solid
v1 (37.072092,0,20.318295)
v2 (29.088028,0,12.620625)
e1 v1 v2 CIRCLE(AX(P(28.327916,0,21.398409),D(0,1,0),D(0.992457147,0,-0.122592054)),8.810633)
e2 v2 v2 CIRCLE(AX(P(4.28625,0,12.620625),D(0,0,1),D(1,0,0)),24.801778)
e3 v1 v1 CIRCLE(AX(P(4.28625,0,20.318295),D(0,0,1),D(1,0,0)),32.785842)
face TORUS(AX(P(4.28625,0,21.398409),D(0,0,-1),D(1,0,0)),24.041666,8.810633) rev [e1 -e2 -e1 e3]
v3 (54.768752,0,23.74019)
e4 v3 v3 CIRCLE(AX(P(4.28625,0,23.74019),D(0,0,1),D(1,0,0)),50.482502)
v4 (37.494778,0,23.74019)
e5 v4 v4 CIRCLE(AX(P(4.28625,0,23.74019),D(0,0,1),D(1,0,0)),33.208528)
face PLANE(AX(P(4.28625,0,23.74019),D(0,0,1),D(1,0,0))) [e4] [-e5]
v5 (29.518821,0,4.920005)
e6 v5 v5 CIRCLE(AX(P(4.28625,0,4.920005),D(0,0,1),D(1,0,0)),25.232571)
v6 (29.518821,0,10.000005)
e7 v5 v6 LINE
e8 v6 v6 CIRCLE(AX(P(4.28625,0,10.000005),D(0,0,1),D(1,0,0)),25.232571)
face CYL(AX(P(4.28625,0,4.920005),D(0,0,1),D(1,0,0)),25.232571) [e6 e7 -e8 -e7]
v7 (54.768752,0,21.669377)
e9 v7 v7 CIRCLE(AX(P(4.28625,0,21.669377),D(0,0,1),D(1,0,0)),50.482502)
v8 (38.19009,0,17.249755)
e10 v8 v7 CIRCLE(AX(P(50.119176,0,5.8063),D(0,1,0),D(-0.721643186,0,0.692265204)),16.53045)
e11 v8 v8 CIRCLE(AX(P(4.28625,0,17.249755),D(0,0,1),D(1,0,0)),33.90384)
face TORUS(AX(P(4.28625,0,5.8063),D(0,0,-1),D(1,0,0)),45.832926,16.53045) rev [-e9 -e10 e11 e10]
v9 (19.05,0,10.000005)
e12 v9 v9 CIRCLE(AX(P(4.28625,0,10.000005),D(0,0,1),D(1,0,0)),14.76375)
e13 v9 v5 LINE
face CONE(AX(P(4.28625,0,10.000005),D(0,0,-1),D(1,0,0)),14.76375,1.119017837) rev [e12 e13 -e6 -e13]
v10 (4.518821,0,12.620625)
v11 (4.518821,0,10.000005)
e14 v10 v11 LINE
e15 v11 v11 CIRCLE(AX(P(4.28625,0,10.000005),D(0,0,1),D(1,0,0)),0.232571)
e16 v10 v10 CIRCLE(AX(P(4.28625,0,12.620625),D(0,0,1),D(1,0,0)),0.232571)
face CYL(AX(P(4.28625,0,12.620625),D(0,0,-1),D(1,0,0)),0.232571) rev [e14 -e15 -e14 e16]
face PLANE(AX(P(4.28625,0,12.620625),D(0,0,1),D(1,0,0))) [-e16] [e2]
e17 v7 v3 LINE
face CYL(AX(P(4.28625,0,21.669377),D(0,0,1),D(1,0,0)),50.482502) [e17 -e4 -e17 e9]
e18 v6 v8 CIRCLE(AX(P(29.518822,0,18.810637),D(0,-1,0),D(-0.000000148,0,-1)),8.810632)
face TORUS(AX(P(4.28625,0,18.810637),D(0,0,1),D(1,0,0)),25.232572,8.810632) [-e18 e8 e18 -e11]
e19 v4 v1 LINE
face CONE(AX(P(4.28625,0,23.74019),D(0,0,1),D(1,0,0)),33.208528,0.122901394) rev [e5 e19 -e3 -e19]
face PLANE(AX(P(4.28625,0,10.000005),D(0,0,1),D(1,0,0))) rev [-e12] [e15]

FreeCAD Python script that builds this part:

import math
import FreeCAD as App
import Part
import Sketcher
Q = App.Units.Quantity

doc = App.newDocument("Part")
body = doc.addObject("PartDesign::Body", "Body")

# Sketch on XZ plane
sketch1 = body.newObject("Sketcher::SketchObject", "Sketch")
sketch1.AttachmentSupport = (doc.getObject("XZ_Plane"), [""])
sketch1.MapMode = "FlatFace"
sketch1.addGeometry([
    Part.LineSegment(App.Vector(4.5, 12.6, 0), App.Vector(4.5, 10, 0)),  # 0
    Part.LineSegment(App.Vector(4.5, 10, 0), App.Vector(19.1, 10, 0)),  # 1
    Part.LineSegment(App.Vector(19.1, 10, 0), App.Vector(29.5, 4.9, 0)),  # 2
    Part.LineSegment(App.Vector(29.5, 4.9, 0), App.Vector(29.5, 10, 0)),  # 3
    Part.ArcOfCircle(Part.Circle(App.Vector(29.5, 18.8, 0), App.Vector(0, 0, 1), 8.8), math.radians(-90), math.radians(-10)),  # 4
    Part.ArcOfCircle(Part.Circle(App.Vector(50.1, 5.8, 0), App.Vector(0, 0, 1), 16.5), math.radians(74), math.radians(136)),  # 5
    Part.LineSegment(App.Vector(54.8, 21.7, 0), App.Vector(54.8, 23.7, 0)),  # 6
    Part.LineSegment(App.Vector(54.8, 23.7, 0), App.Vector(37.5, 23.7, 0)),  # 7
    Part.LineSegment(App.Vector(37.5, 23.7, 0), App.Vector(37.1, 20.3, 0)),  # 8
    Part.ArcOfCircle(Part.Circle(App.Vector(28.3, 21.4, 0), App.Vector(0, 0, 1), 8.8), math.radians(-85), math.radians(-7)),  # 9
    Part.LineSegment(App.Vector(29.1, 12.6, 0), App.Vector(4.5, 12.6, 0)),  # 10
], False)
sketch1.addGeometry(Part.LineSegment(App.Vector(4.3, 4.9, 0), App.Vector(4.3, 23.7, 0)), True)  # axis
sketch1.addConstraint([
    Sketcher.Constraint("Coincident", 0, 2, 1, 1),
    Sketcher.Constraint("Coincident", 1, 2, 2, 1),
    Sketcher.Constraint("Coincident", 2, 2, 3, 1),
    Sketcher.Constraint("Coincident", 3, 2, 4, 1),
    Sketcher.Constraint("Coincident", 4, 2, 5, 2),
    Sketcher.Constraint("Coincident", 5, 1, 6, 1),
    Sketcher.Constraint("Coincident", 6, 2, 7, 1),
    Sketcher.Constraint("Coincident", 7, 2, 8, 1),
    Sketcher.Constraint("Tangent", 8, 2, 9, 2),
    Sketcher.Constraint("Coincident", 9, 1, 10, 1),
    Sketcher.Constraint("Coincident", 10, 2, 0, 1),
    Sketcher.Constraint("Vertical", 0),
    Sketcher.Constraint("Horizontal", 1),
    Sketcher.Constraint("Vertical", 3),
    Sketcher.Constraint("Vertical", 6),
    Sketcher.Constraint("Horizontal", 7),
    Sketcher.Constraint("Horizontal", 10),
    Sketcher.Constraint("Vertical", 11),
    Sketcher.Constraint("Equal", 4, 9),
    Sketcher.Constraint("Horizontal", 1, 2, 3, 2),
    Sketcher.Constraint("Horizontal", 2, 2, 11, 1),
    Sketcher.Constraint("Horizontal", 7, 2, 11, 2),
    Sketcher.Constraint("Vertical", 4, 3, 2, 2),
    Sketcher.Constraint("DistanceY", 3, 1, 3, 2, Q("0.2 in")),
    Sketcher.Constraint("DistanceX", -1, 1, 1, 2, Q("0.75 in")),
    Sketcher.Constraint("DistanceX", -1, 1, 5, 1, Q("2.1562501 in")),
    Sketcher.Constraint("Radius", 4, 8.810632),
    Sketcher.Constraint("Radius", 5, 16.53045),
    Sketcher.Constraint("DistanceX", 9, 3, 7, 2, Q("0.3609001 in")),
    Sketcher.Constraint("DistanceX", 1, 1, 1, 2, 14.531179),
    Sketcher.Constraint("DistanceY", 0, 2, 0, 1, 2.62062),
    Sketcher.Constraint("DistanceY", -1, 1, 5, 3, 5.8063),
    Sketcher.Constraint("DistanceX", 0, 2, 4, 3, 25.000001),
    Sketcher.Constraint("DistanceX", 7, 2, 7, 1, 17.273974),
    Sketcher.Constraint("DistanceX", 10, 2, 10, 1, 24.569207),
    Sketcher.Constraint("DistanceY", 6, 1, 6, 2, 2.070813),
    Sketcher.Constraint("DistanceY", 11, 1, 11, 2, 18.820185),
    Sketcher.Constraint("DistanceY", -1, 1, 9, 3, 21.398409),
    Sketcher.Constraint("DistanceX", -1, 1, 11, 1, 4.28625),
])
revolution = body.newObject("PartDesign::Revolution", "Revolution")
revolution.Profile = sketch1
revolution.ReferenceAxis = (sketch1, ["Axis0"])
revolution.Angle = 360

doc.recompute()
